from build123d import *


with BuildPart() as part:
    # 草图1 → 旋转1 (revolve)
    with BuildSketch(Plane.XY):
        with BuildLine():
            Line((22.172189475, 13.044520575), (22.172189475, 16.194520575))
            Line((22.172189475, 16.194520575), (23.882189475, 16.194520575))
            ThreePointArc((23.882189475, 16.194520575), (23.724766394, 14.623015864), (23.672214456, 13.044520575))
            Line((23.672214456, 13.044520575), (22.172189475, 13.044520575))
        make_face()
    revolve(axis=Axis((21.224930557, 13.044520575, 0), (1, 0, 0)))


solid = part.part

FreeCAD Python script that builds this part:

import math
import FreeCAD as App
import Part
import Sketcher
Q = App.Units.Quantity

doc = App.newDocument("Part")
body = doc.addObject("PartDesign::Body", "Body")

sketch1 = body.newObject("Sketcher::SketchObject", "Sketch")
sketch1.AttachmentSupport = (doc.getObject("XY_Plane"), [""])
sketch1.MapMode = "FlatFace"
sketch1.addGeometry([
    Part.LineSegment(App.Vector(22.2, 16.2, 0), App.Vector(22.2, 13, 0)),
    Part.LineSegment(App.Vector(22.2, 13, 0), App.Vector(23.7, 13, 0)),
    Part.ArcOfCircle(Part.Circle(App.Vector(47.4, 13, 0), App.Vector(0, 0, 1), 23.7), math.radians(172.37), math.radians(180)),
    Part.LineSegment(App.Vector(23.9, 16.2, 0), App.Vector(22.2, 16.2, 0)),
], False)
sketch1.addGeometry(Part.LineSegment(App.Vector(22.2, 13, 0), App.Vector(47.4, 13, 0)), True)
sketch1.addConstraint([
    Sketcher.Constraint("Coincident", 0, 2, 1, 1),
    Sketcher.Constraint("Coincident", 1, 2, 2, 2),
    Sketcher.Constraint("Coincident", 2, 1, 3, 1),
    Sketcher.Constraint("Coincident", 3, 2, 0, 1),
    Sketcher.Constraint("Vertical", 0),
    Sketcher.Constraint("Horizontal", 1),
    Sketcher.Constraint("Horizontal", 3),
    Sketcher.Constraint("Horizontal", 4),
    Sketcher.Constraint("Coincident", 4, 1, 0, 2),
    Sketcher.Constraint("Coincident", 4, 2, 2, 3),
    Sketcher.Constraint("DistanceX", 3, 2, 3, 1, Q("1.71 mm")),
    Sketcher.Constraint("DistanceY", 0, 2, 0, 1, Q("3.15 mm")),
    Sketcher.Constraint("Radius", 2, Q("23.732798 mm")),
    Sketcher.Constraint("DistanceY", -1, 1, 2, 3, Q("13.044521 mm")),
    Sketcher.Constraint("DistanceX", -1, 1, 0, 2, Q("22.172189 mm")),
])
revolution = body.newObject("PartDesign::Revolution", "Revolution")
revolution.Profile = sketch1
revolution.ReferenceAxis = (sketch1, ["Axis0"])
revolution.Angle = 360

doc.recompute()
